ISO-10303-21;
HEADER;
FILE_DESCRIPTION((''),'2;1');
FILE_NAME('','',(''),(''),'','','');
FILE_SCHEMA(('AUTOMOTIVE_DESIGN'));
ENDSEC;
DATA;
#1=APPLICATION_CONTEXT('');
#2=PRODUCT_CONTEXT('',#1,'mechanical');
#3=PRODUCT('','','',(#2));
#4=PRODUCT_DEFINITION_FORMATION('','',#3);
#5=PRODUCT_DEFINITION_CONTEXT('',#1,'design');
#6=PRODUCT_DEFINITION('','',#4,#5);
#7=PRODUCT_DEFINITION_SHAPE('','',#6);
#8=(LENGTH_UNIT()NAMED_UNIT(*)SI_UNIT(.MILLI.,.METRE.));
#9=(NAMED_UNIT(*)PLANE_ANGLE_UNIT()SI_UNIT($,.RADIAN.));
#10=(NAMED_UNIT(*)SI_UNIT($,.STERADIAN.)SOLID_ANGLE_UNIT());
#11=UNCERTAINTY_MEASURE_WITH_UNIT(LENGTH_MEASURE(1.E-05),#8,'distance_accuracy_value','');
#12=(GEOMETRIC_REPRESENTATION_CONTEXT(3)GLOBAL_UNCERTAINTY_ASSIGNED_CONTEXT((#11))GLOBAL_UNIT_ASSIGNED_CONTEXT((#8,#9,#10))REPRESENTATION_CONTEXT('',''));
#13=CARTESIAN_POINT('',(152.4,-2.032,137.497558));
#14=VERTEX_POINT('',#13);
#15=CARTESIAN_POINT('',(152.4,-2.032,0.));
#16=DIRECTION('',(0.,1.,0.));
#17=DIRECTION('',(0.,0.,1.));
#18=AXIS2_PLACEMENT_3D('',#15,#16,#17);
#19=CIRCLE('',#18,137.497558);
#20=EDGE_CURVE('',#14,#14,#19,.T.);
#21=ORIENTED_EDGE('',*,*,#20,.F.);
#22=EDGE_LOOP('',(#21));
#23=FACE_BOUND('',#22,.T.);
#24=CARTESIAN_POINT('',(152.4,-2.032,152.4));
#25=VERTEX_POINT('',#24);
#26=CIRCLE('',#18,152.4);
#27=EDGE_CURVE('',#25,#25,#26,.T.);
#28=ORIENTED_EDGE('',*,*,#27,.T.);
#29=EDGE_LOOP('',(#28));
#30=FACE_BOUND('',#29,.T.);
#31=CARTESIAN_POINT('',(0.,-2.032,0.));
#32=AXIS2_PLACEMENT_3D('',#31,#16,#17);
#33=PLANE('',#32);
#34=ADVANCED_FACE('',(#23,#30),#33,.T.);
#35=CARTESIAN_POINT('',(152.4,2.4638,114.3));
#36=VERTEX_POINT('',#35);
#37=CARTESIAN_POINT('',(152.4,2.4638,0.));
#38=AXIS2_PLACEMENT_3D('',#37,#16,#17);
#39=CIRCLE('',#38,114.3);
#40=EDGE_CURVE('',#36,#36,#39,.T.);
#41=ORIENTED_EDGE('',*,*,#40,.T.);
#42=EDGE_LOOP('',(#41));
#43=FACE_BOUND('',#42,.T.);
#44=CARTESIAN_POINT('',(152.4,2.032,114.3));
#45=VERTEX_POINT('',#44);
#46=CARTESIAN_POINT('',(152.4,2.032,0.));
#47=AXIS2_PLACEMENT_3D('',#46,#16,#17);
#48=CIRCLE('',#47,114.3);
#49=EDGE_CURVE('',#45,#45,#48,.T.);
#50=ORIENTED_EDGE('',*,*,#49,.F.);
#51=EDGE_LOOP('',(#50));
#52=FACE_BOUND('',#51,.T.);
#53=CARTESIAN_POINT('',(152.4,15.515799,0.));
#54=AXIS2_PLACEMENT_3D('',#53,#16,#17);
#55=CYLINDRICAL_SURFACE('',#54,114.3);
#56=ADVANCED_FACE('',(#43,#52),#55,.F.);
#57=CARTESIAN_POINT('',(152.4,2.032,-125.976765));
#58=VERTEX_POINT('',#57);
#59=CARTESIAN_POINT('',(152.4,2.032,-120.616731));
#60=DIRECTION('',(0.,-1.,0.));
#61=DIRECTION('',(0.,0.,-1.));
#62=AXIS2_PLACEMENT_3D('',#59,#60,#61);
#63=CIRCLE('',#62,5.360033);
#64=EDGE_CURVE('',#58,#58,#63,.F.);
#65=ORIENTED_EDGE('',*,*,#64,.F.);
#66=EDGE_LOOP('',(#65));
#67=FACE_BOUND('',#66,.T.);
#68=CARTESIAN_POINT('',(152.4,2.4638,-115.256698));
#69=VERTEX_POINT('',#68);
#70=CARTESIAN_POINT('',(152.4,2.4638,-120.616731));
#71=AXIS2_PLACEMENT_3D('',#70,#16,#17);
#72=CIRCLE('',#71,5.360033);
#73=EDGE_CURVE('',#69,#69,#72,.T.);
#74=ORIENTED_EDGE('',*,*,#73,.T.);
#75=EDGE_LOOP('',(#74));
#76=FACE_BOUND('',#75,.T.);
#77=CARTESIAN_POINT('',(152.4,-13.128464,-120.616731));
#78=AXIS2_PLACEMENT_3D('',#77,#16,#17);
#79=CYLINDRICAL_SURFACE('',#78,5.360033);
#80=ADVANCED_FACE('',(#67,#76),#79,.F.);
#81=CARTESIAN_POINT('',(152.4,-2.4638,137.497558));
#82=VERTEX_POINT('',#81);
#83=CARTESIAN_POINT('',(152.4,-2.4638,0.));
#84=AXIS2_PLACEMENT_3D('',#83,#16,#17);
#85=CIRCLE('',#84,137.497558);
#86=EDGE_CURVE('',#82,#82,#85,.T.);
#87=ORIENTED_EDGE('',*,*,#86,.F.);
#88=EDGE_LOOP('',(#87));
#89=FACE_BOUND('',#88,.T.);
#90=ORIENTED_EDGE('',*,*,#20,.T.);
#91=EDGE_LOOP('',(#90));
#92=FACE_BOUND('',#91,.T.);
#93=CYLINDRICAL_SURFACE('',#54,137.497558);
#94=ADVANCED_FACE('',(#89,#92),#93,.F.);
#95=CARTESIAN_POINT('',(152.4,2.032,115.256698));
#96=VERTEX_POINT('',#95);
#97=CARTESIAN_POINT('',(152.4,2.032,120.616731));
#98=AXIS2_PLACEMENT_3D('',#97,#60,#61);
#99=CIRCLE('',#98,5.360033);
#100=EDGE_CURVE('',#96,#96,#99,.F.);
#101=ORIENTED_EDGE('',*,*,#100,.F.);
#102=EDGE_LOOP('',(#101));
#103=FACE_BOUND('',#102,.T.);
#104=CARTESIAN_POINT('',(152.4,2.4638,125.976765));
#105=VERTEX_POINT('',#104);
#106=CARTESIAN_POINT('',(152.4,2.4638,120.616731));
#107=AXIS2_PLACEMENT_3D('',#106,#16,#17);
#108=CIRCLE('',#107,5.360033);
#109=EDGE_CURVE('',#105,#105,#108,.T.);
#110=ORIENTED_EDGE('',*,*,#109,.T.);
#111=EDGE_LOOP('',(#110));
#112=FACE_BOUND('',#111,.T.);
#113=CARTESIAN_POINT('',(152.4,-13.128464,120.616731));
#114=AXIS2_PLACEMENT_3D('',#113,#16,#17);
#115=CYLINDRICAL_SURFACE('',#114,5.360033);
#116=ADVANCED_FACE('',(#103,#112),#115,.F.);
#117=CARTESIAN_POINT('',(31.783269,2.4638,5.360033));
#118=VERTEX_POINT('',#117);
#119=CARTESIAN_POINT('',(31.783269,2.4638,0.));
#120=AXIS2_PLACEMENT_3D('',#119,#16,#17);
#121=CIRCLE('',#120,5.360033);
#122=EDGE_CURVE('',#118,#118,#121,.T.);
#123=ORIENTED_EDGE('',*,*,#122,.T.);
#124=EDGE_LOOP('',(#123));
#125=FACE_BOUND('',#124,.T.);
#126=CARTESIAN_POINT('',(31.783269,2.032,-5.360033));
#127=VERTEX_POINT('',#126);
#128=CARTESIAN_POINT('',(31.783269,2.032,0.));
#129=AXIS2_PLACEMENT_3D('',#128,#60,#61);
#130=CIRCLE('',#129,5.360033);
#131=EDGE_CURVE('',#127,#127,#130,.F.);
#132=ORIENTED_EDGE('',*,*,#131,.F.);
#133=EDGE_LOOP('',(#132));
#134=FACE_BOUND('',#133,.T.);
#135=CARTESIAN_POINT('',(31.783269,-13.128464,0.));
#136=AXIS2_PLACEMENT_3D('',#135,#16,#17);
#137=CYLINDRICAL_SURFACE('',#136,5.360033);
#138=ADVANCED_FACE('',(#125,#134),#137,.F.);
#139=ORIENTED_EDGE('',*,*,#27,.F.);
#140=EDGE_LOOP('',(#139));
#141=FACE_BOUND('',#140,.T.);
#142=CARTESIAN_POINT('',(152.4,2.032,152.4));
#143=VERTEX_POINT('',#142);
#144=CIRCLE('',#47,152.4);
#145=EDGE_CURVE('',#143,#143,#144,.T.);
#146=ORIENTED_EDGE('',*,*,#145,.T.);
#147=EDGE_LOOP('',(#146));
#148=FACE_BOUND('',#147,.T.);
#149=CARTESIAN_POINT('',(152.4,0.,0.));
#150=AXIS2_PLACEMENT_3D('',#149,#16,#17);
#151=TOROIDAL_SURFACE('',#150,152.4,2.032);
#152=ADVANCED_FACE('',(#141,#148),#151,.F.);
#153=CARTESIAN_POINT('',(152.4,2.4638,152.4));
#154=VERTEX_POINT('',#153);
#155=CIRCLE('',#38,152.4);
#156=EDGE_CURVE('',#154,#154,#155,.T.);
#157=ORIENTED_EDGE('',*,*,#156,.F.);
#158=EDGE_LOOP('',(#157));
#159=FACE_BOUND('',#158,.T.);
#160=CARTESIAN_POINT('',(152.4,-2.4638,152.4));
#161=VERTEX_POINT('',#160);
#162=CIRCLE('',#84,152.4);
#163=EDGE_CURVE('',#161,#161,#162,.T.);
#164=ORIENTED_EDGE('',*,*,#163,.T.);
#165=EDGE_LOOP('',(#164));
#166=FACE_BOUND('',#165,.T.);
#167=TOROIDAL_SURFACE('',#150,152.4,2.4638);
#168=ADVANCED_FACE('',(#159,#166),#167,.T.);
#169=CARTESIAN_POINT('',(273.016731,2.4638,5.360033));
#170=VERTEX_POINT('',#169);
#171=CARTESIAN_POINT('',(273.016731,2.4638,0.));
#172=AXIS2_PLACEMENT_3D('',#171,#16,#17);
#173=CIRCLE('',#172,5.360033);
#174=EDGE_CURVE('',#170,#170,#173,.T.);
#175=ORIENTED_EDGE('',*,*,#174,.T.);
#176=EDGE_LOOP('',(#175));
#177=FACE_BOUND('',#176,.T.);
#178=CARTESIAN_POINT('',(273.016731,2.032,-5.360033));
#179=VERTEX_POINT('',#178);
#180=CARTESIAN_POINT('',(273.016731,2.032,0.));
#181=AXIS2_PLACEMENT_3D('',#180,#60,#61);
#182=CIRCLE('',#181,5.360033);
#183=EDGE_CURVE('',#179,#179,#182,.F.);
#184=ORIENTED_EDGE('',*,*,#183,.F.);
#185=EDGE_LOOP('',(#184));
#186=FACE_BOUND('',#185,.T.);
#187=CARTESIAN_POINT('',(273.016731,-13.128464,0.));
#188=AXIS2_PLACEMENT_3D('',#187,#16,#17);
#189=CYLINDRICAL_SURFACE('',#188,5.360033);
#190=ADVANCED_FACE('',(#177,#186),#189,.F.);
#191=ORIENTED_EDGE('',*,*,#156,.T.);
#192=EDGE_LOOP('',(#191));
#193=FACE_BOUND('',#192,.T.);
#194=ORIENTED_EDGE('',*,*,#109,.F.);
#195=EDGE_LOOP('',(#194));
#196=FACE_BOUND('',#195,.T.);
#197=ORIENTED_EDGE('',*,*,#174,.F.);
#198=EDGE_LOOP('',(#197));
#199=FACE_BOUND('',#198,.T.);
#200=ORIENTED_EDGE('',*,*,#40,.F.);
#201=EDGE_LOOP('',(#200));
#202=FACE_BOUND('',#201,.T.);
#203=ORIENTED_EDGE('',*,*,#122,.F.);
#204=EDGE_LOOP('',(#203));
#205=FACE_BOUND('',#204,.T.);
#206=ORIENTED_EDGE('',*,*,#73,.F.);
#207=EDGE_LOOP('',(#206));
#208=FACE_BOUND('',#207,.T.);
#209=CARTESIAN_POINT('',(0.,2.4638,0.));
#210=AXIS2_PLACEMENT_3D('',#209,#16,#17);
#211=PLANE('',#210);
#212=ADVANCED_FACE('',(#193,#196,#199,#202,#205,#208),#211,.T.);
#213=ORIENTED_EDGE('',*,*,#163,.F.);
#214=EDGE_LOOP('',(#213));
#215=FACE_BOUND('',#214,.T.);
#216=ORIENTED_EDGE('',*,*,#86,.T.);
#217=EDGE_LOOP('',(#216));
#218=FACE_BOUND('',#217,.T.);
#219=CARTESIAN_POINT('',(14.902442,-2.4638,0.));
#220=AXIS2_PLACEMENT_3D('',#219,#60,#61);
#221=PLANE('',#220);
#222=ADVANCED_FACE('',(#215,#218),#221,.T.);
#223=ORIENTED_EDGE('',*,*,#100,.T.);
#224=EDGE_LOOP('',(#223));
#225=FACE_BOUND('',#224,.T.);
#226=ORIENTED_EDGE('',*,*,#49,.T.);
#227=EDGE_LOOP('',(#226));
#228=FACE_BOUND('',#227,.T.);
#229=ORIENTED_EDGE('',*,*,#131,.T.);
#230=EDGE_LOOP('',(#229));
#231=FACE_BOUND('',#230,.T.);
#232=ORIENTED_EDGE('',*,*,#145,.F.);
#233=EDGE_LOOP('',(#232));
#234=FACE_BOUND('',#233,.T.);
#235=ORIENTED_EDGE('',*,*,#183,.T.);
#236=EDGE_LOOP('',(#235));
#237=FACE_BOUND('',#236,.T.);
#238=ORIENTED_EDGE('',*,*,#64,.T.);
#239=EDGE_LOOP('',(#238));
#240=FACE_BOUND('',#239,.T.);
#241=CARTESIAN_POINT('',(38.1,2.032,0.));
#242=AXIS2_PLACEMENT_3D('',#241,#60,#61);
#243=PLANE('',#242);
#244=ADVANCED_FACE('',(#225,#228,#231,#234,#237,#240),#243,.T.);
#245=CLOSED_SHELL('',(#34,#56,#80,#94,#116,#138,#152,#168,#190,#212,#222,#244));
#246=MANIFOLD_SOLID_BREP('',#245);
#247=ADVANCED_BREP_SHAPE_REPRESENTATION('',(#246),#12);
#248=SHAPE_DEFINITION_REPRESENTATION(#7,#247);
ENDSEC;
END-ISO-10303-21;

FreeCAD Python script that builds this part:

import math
import FreeCAD as App
import Part
import Sketcher
Q = App.Units.Quantity

doc = App.newDocument("Part")
body = doc.addObject("PartDesign::Body", "Body")

sketch1 = body.newObject("Sketcher::SketchObject", "Sketch")
sketch1.AttachmentSupport = (doc.getObject("XY_Plane"), [""])
sketch1.MapMode = "FlatFace"
sketch1.addGeometry([
    Part.LineSegment(App.Vector(38.1, 2.46, 0), App.Vector(0, 2.46, 0)),
    Part.ArcOfCircle(Part.Circle(App.Vector(0, 0, 0), App.Vector(0, 0, 1), 2.46), math.radians(90), math.radians(270)),
    Part.LineSegment(App.Vector(0, -2.46, 0), App.Vector(14.9, -2.46, 0)),
    Part.LineSegment(App.Vector(14.9, -2.46, 0), App.Vector(14.9, -2.03, 0)),
    Part.LineSegment(App.Vector(14.9, -2.03, 0), App.Vector(0, -2.03, 0)),
    Part.ArcOfCircle(Part.Circle(App.Vector(0, 0, 0), App.Vector(0, 0, 1), 2.03), math.radians(90), math.radians(270)),
    Part.LineSegment(App.Vector(0, 2.03, 0), App.Vector(38.1, 2.03, 0)),
    Part.LineSegment(App.Vector(38.1, 2.03, 0), App.Vector(38.1, 2.46, 0)),
], False)
sketch1.addGeometry(Part.LineSegment(App.Vector(152.4, 2.46, 0), App.Vector(152.4, -2.46, 0)), True)
sketch1.addConstraint([
    Sketcher.Constraint("Tangent", 0, 2, 1, 1),
    Sketcher.Constraint("Tangent", 1, 2, 2, 1),
    Sketcher.Constraint("Coincident", 2, 2, 3, 1),
    Sketcher.Constraint("Coincident", 3, 2, 4, 1),
    Sketcher.Constraint("Tangent", 4, 2, 5, 2),
    Sketcher.Constraint("Tangent", 5, 1, 6, 1),
    Sketcher.Constraint("Coincident", 6, 2, 7, 1),
    Sketcher.Constraint("Coincident", 7, 2, 0, 1),
    Sketcher.Constraint("Horizontal", 0),
    Sketcher.Constraint("Horizontal", 2),
    Sketcher.Constraint("Vertical", 3),
    Sketcher.Constraint("Horizontal", 4),
    Sketcher.Constraint("Horizontal", 6),
    Sketcher.Constraint("Vertical", 7),
    Sketcher.Constraint("Vertical", 8),
    Sketcher.Constraint("Coincident", 1, 3, -1, 1),
    Sketcher.Constraint("Coincident", 5, 3, -1, 1),
    Sketcher.Constraint("Horizontal", 7, 2, 8, 1),
    Sketcher.Constraint("Horizontal", 2, 2, 8, 2),
    Sketcher.Constraint("Radius", 5, Q("0.08 in")),
    Sketcher.Constraint("DistanceX", 0, 2, 0, 1, Q("1.5 in")),
    Sketcher.Constraint("DistanceX", -1, 1, 8, 1, Q("6 in")),
    Sketcher.Constraint("Radius", 1, Q("0.097 in")),
    Sketcher.Constraint("DistanceX", 2, 1, 2, 2, 14.902442),
])
revolution = body.newObject("PartDesign::Revolution", "Revolution")
revolution.Profile = sketch1
revolution.ReferenceAxis = (sketch1, ["Axis0"])
revolution.Angle = 360

sketch2 = body.newObject("Sketcher::SketchObject", "Sketch001")
sketch2.AttachmentSupport = (doc.getObject("XZ_Plane"), [""])
sketch2.MapMode = "FlatFace"
sketch2.AttachmentOffset = App.Placement(App.Vector(0, 0, -0.097 * 25.4), App.Rotation())
sketch2.addGeometry([
    Part.Circle(App.Vector(32, 0, 0), App.Vector(0, 0, 1), 5),
    Part.Circle(App.Vector(152, -121, 0), App.Vector(0, 0, 1), 5),
    Part.Circle(App.Vector(273, 0, 0), App.Vector(0, 0, 1), 5),
    Part.Circle(App.Vector(152, 121, 0), App.Vector(0, 0, 1), 5),
], False)
sketch2.addConstraint([
    Sketcher.Constraint("Equal", 0, 1),
    Sketcher.Constraint("Equal", 1, 2),
    Sketcher.Constraint("Equal", 2, 3),
    Sketcher.Constraint("Symmetric", 1, 3, 3, 3, -1),
    Sketcher.Constraint("PointOnObject", 0, 3, -1),
    Sketcher.Constraint("PointOnObject", 2, 3, -1),
    Sketcher.Constraint("DistanceX", -1, 1, 1, 3, Q("6 in")),
    Sketcher.Constraint("Diameter", 0, 10.720067),
    Sketcher.Constraint("DistanceX", -1, 1, 0, 3, 31.783269),
    Sketcher.Constraint("DistanceY", 1, 3, -1, 1, 120.616731),
    Sketcher.Constraint("DistanceX", -1, 1, 2, 3, 273.016731),
])
pocket1 = body.newObject("PartDesign::Pocket", "Pocket")
pocket1.Profile = sketch2
pocket1.Length = Q("0.017 in")
pocket1.Reversed = True

doc.recompute()
